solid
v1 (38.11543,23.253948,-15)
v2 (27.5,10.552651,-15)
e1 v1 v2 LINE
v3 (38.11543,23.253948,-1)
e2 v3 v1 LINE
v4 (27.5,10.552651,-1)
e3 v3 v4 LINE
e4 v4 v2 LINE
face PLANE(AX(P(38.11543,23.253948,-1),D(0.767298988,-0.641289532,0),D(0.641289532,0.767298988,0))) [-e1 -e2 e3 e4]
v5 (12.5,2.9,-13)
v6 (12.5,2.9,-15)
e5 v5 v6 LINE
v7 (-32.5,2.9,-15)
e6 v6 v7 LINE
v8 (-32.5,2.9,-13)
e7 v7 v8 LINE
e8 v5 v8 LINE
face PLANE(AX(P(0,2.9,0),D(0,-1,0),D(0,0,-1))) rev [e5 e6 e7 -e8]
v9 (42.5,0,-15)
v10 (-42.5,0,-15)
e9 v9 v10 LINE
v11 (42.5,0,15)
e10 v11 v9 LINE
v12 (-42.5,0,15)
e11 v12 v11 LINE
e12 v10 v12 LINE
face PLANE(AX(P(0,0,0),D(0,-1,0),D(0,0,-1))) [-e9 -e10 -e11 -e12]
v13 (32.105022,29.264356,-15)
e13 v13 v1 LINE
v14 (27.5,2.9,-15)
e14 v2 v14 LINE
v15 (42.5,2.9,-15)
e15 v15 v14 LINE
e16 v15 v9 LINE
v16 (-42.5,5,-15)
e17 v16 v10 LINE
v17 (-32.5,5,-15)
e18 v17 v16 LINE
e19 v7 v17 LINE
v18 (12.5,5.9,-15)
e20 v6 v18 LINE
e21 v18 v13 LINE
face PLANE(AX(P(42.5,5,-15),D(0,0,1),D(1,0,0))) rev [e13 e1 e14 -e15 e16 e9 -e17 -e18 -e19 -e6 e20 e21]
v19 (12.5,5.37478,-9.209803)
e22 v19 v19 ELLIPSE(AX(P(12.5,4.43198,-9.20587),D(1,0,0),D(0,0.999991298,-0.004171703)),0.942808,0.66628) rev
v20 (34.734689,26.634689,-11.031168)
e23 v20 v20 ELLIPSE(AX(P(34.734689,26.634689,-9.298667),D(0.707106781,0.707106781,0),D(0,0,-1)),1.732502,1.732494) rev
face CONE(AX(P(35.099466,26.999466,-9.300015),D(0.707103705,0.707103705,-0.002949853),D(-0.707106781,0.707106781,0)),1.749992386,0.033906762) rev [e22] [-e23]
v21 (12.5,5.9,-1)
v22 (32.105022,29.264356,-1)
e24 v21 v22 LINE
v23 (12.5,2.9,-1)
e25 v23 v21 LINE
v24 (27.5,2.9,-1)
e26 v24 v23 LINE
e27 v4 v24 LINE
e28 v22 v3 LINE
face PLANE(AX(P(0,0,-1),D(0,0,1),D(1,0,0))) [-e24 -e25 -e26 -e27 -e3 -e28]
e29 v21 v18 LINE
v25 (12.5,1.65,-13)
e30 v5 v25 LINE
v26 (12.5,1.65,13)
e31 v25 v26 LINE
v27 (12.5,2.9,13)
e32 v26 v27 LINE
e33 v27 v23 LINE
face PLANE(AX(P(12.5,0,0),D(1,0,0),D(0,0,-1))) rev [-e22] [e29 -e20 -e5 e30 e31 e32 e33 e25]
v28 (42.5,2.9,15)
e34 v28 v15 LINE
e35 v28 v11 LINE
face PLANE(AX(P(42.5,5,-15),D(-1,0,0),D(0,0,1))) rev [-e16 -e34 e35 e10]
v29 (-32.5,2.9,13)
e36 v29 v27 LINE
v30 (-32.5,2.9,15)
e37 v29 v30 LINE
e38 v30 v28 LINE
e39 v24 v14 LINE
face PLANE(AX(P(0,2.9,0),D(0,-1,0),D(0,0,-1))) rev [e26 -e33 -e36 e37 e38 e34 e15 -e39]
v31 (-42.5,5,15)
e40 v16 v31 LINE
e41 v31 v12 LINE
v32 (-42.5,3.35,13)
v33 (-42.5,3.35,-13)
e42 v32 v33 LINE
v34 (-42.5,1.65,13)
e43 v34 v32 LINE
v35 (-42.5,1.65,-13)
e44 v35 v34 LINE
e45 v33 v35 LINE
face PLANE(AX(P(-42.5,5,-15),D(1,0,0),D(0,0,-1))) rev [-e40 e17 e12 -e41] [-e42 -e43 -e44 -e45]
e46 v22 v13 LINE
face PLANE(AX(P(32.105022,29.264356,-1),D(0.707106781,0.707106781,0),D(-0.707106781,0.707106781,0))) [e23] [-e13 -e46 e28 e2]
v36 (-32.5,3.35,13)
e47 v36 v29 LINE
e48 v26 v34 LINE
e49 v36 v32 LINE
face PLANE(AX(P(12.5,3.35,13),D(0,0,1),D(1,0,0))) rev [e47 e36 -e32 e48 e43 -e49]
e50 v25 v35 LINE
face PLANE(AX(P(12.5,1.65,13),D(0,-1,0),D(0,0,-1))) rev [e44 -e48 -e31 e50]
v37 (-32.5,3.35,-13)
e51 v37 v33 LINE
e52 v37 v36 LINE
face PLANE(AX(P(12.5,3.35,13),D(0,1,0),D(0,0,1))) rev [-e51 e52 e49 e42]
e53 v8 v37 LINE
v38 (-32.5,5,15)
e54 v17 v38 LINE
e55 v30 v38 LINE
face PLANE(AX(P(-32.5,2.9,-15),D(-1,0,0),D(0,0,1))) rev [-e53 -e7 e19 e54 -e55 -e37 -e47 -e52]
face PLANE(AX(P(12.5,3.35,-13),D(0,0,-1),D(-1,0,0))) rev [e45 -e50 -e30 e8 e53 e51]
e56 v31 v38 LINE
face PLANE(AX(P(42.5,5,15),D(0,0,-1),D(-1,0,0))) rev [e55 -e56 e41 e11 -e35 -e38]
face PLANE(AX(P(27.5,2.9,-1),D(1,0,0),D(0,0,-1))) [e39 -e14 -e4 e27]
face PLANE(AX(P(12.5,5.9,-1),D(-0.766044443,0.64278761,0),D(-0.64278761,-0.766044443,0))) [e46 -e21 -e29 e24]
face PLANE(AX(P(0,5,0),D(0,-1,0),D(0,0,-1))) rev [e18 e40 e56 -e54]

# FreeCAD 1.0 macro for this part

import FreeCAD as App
import Part
import Sketcher

V = App.Vector
Q = App.Units.Quantity


def add_polygon(sketch, points):
    """Adds a closed chain of lines whose ends are joined by coincident constraints."""
    first, n = sketch.GeometryCount, len(points)
    for a, b in zip(points, points[1:] + points[:1]):
        sketch.addGeometry(Part.LineSegment(App.Vector(*a, 0), App.Vector(*b, 0)), False)
    for i in range(n):
        sketch.addConstraint(Sketcher.Constraint("Coincident", first + i, 2, first + (i + 1) % n, 1))

doc = App.newDocument("Part")
body = doc.addObject("PartDesign::Body", "Body")

# Sketch on XZ plane
sketch1 = doc.addObject("Sketcher::SketchObject", "Sketch")
body.addObject(sketch1)
sketch1.AttachmentSupport = (doc.XZ_Plane, [""])
sketch1.MapMode = "FlatFace"
add_polygon(sketch1, [(-42, -15), (-42, 15), (42, 15), (42, -15)])  # lines 0-3
sketch1.addConstraint([
    Sketcher.Constraint("Vertical", 0),
    Sketcher.Constraint("Horizontal", 1),
    Sketcher.Constraint("Vertical", 2),
    Sketcher.Constraint("Horizontal", 3),
    Sketcher.Constraint("Symmetric", 0, 2, 2, 2, -1, 1),
    Sketcher.Constraint("DistanceX", 1, 1, 1, 2, 85.0),
    Sketcher.Constraint("DistanceY", 0, 1, 0, 2, 30.0),
])
pad1 = doc.addObject("PartDesign::Pad", "Pad")
body.addObject(pad1)
pad1.Profile = sketch1
pad1.Length = 5
pad1.Reversed = True

# Sketch on YZ plane
sketch2 = doc.addObject("Sketcher::SketchObject", "Sketch001")
body.addObject(sketch2)
sketch2.AttachmentSupport = (doc.YZ_Plane, [""])
sketch2.MapMode = "FlatFace"
sketch2.AttachmentOffset = App.Placement(V(0, 0, -42.5), App.Rotation())
add_polygon(sketch2, [(3.4, -13), (1.6, -13), (1.6, 13), (3.4, 13)])  # lines 0-3
sketch2.addConstraint([
    Sketcher.Constraint("Horizontal", 0),
    Sketcher.Constraint("Vertical", 1),
    Sketcher.Constraint("Horizontal", 2),
    Sketcher.Constraint("Vertical", 3),
    Sketcher.Constraint("DistanceY", 1, 1, 1, 2, 26.0),
    Sketcher.Constraint("DistanceX", 0, 2, 0, 1, 1.7),
    Sketcher.Constraint("DistanceY", 0, 2, -1, 1, 13.0),
    Sketcher.Constraint("DistanceX", -1, 1, 0, 2, 1.65),
])
pocket1 = doc.addObject("PartDesign::Pocket", "Pocket")
body.addObject(pocket1)
pocket1.Profile = sketch2
pocket1.Length = 55
pocket1.Reversed = True

# Sketch on XZ plane
sketch3 = doc.addObject("Sketcher::SketchObject", "Sketch002")
body.addObject(sketch3)
sketch3.AttachmentSupport = (doc.XZ_Plane, [""])
sketch3.MapMode = "FlatFace"
sketch3.AttachmentOffset = App.Placement(V(0, 0, -5), App.Rotation())
add_polygon(sketch3, [(-32, -15), (-32, 15), (42, 15), (42, -15)])  # lines 0-3
sketch3.addConstraint([
    Sketcher.Constraint("Vertical", 0),
    Sketcher.Constraint("Horizontal", 1),
    Sketcher.Constraint("Vertical", 2),
    Sketcher.Constraint("Horizontal", 3),
    Sketcher.Constraint("DistanceX", 1, 1, 1, 2, 75.0),
    Sketcher.Constraint("DistanceY", 0, 1, 0, 2, 30.0),
    Sketcher.Constraint("DistanceY", -1, 1, 0, 2, 15.0),
    Sketcher.Constraint("DistanceX", 0, 2, -1, 1, 32.5),
])
pocket2 = doc.addObject("PartDesign::Pocket", "Pocket001")
body.addObject(pocket2)
pocket2.Profile = sketch3
pocket2.Length = 2.1
pocket2.Reversed = True

# Sketch on XY plane
sketch4 = doc.addObject("Sketcher::SketchObject", "Sketch003")
body.addObject(sketch4)
sketch4.AttachmentSupport = (doc.XY_Plane, [""])
sketch4.MapMode = "FlatFace"
sketch4.AttachmentOffset = App.Placement(V(0, 0, -15), App.Rotation())
add_polygon(sketch4, [(27.5, 2.9), (12.5, 2.9), (12.5, 5.9), (32.1, 29.3), (38.1, 23.3), (27.5, 10.6)])  # lines 0-5
sketch4.addConstraint([
    Sketcher.Constraint("Horizontal", 0),
    Sketcher.Constraint("Vertical", 1),
    Sketcher.Constraint("Vertical", 5),
    Sketcher.Constraint("DistanceX", 0, 2, 0, 1, 15.0),
    Sketcher.Constraint("DistanceY", 1, 1, 1, 2, 3.0),
    Sketcher.Constraint("Angle", 2, Q("50 deg")),
    Sketcher.Constraint("Angle", 3, Q("-45 deg")),
    Sketcher.Constraint("Distance", 2, 30.5),
    Sketcher.Constraint("Distance", 3, 8.5),
    Sketcher.Constraint("DistanceX", -1, 1, 0, 2, 12.5),
    Sketcher.Constraint("DistanceY", -1, 1, 0, 2, 2.9),
    Sketcher.Constraint("DistanceY", 5, 2, 5, 1, 7.652651),
])
pad2 = doc.addObject("PartDesign::Pad", "Pad001")
body.addObject(pad2)
pad2.Profile = sketch4
pad2.Length = 14

# Sketch on an angled plane
sketch5 = doc.addObject("Sketcher::SketchObject", "Sketch004")
body.addObject(sketch5)
sketch5.Placement = App.Placement(V(4.05, -4.05, 0), App.Rotation(V(0, 0, 1), V(0.707106781, 0.707106781, 0), V(-0.707106781, 0.707106781, 0), "ZXY"))
add_polygon(sketch5, [(-9.8, 10), (-9.2, 10), (-9.3, 43.9), (-11.1, 43.9)])  # lines 0-3
sketch5.addGeometry(Part.LineSegment(V(-9.2, 10, 0), V(-9.3, 43.9, 0)), True)  # axis
sketch5.addConstraint([
    Sketcher.Constraint("Horizontal", 0),
    Sketcher.Constraint("Horizontal", 2),
    Sketcher.Constraint("Coincident", 4, 1, 0, 2),
    Sketcher.Constraint("Parallel", 1, 4),
    Sketcher.Constraint("DistanceX", 0, 1, 0, 2, 0.6),
    Sketcher.Constraint("Distance", 1, 33.9),
    Sketcher.Constraint("DistanceX", 2, 2, 2, 1, 1.75),
    Sketcher.Constraint("DistanceX", 0, 2, -1, 1, 9.2),
    Sketcher.Constraint("DistanceX", 1, 2, -1, 1, 9.3),
    Sketcher.Constraint("DistanceY", -1, 1, 0, 2, 10.005561),
    Sketcher.Constraint("Distance", 4, 33.905162),
])
groove = doc.addObject("PartDesign::Groove", "Groove")
body.addObject(groove)
groove.Profile = sketch5
groove.ReferenceAxis = (sketch5, ["Axis0"])
groove.Angle = 360

doc.recompute()
